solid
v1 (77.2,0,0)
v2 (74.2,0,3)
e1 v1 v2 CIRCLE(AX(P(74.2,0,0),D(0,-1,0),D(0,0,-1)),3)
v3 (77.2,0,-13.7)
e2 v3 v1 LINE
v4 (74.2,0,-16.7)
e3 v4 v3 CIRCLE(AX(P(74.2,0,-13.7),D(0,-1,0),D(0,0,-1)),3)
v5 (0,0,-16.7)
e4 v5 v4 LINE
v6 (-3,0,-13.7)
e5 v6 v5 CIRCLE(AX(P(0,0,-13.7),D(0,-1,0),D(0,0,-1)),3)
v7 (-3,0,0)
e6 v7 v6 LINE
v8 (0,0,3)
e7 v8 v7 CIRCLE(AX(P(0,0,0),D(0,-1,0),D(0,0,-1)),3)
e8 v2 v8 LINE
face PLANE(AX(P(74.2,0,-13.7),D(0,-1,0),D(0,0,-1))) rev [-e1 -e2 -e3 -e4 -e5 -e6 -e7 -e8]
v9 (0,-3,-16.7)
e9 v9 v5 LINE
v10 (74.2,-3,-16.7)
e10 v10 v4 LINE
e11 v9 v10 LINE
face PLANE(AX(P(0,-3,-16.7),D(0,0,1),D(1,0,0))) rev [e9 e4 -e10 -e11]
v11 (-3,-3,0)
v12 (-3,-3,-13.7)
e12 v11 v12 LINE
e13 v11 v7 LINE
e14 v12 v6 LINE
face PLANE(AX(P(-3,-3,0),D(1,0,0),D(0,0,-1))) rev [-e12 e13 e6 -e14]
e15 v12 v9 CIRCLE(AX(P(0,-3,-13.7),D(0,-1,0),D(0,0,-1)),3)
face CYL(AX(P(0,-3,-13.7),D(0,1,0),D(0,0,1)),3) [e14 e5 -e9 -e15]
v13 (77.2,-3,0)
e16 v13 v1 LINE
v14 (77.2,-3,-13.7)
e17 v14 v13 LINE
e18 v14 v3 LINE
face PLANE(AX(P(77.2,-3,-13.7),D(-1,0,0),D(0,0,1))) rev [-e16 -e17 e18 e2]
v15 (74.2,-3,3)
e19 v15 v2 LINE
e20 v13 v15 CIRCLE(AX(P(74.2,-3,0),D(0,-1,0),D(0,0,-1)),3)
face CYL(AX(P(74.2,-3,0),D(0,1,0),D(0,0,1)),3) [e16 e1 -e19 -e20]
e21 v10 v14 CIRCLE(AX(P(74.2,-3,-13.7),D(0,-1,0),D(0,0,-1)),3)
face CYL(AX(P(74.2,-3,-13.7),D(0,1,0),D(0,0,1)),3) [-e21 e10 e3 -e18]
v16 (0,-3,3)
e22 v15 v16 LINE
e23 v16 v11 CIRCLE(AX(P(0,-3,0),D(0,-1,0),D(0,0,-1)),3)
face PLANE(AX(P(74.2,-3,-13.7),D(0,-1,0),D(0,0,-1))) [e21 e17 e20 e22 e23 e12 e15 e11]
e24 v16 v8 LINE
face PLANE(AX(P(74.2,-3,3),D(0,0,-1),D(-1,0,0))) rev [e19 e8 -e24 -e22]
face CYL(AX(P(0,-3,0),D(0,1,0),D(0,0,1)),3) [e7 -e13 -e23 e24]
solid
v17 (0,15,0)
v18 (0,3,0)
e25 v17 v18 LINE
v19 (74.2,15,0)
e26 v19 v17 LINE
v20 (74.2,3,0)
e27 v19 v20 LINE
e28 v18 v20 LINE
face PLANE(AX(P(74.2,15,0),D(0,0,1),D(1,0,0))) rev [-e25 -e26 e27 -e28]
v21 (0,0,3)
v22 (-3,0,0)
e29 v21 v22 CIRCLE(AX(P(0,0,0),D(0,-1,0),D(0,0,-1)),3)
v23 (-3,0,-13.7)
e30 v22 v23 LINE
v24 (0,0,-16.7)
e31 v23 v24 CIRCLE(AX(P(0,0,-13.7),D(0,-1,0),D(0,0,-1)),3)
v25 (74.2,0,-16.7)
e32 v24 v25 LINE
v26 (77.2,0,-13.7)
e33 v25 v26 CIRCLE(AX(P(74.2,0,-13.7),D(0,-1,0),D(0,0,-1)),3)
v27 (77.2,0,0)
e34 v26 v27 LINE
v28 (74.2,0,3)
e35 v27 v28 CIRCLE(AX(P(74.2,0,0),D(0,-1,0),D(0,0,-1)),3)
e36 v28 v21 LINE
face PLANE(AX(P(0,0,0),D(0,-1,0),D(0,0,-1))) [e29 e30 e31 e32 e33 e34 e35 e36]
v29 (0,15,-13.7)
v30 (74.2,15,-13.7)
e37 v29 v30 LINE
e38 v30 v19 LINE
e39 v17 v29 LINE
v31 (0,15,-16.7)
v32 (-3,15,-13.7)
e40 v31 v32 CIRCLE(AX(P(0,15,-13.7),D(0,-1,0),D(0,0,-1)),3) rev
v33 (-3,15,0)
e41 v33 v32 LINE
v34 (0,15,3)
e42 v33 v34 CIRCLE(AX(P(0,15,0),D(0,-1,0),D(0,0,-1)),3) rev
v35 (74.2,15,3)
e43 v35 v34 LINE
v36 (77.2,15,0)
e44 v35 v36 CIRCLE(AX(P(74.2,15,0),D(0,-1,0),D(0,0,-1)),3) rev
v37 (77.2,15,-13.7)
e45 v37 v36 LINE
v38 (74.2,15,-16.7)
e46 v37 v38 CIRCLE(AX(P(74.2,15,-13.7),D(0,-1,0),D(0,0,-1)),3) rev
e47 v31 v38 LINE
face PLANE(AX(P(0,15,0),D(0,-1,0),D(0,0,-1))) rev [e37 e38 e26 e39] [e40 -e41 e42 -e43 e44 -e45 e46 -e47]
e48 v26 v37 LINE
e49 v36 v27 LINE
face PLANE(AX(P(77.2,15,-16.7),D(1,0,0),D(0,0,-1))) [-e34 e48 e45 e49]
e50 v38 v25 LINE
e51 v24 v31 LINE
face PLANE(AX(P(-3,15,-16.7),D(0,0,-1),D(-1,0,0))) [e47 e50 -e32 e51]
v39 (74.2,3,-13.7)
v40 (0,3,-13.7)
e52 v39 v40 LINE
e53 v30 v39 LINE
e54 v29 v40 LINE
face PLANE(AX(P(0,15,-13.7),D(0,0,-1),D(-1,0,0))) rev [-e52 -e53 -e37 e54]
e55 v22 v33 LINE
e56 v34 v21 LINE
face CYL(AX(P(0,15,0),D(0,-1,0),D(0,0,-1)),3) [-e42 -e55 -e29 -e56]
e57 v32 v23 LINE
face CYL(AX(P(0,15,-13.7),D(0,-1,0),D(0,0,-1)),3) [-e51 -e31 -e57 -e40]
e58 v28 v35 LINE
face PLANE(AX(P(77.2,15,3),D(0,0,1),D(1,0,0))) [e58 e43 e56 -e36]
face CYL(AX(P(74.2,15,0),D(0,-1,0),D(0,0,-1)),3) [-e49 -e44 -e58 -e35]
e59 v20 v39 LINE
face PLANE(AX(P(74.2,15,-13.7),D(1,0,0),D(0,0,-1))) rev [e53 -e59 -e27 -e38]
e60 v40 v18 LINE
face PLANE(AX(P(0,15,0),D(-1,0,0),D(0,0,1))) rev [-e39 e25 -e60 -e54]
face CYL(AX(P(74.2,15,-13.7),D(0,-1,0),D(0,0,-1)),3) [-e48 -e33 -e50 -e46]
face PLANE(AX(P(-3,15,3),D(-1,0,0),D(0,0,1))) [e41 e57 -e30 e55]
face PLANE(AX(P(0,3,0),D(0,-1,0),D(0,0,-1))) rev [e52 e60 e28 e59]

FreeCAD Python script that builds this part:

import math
import FreeCAD as App
import Part
import Sketcher
from FreeCAD import Vector


def edges_at(feature, points):
    """Names of the edges that pass closest to the given points."""
    edges = feature.Shape.Edges
    near = lambda p: min(range(len(edges)), key=lambda i: edges[i].distToShape(Part.Vertex(*p))[0])
    return sorted({f"Edge{near(p) + 1}" for p in points})

doc = App.newDocument("Part")
params = doc.addObject("Spreadsheet::Sheet", "Params")
for row, (alias, value) in enumerate([
    ("sketch1_width", "74.2 mm"),
    ("sketch1_height", "13.7 mm"),
    ("pad1_length", "3 mm"),
    ("sketch2_width", "80.2 mm"),
    ("sketch2_width2", "74.2 mm"),
    ("sketch2_height", "19.7 mm"),
    ("sketch2_height2", "13.7 mm"),
    ("pad2_length", "15 mm"),
    ("fillet_radius", "3 mm"),
    ("sketch3_radius", "3 mm"),
    ("sketch3_width", "74.2 mm"),
    ("sketch3_height", "13.7 mm"),
    ("pad3_length", "3 mm"),
], start=1):
    params.set(f"A{row}", alias)
    params.set(f"B{row}", "=" + value)
    params.setAlias(f"B{row}", alias)

body = doc.addObject("PartDesign::Body", "Body")

# Sketch on XZ plane
sketch1 = body.newObject("Sketcher::SketchObject", "Sketch")
sketch1.AttachmentSupport = (doc.getObject("XZ_Plane"), [""])
sketch1.MapMode = "FlatFace"
sketch1.addGeometry([
    Part.LineSegment(Vector(0, -14, 0), Vector(0, 0, 0)),
    Part.LineSegment(Vector(0, 0, 0), Vector(74, 0, 0)),
    Part.LineSegment(Vector(74, 0, 0), Vector(74, -14, 0)),
    Part.LineSegment(Vector(74, -14, 0), Vector(0, -14, 0)),
], False)
sketch1.addConstraint([
    Sketcher.Constraint("Coincident", 0, 2, 1, 1),
    Sketcher.Constraint("Coincident", 1, 2, 2, 1),
    Sketcher.Constraint("Coincident", 2, 2, 3, 1),
    Sketcher.Constraint("Coincident", 3, 2, 0, 1),
    Sketcher.Constraint("Vertical", 0),
    Sketcher.Constraint("Horizontal", 1),
    Sketcher.Constraint("Vertical", 2),
    Sketcher.Constraint("Horizontal", 3),
    Sketcher.Constraint("Coincident", 0, 2, -1, 1),
    Sketcher.Constraint("DistanceX", 1, 1, 1, 2, 74.2),
    Sketcher.Constraint("DistanceY", 0, 1, 0, 2, 13.7),
])
sketch1.setExpression("Constraints[9]", "Params.sketch1_width")
sketch1.setExpression("Constraints[10]", "Params.sketch1_height")
pad1 = body.newObject("PartDesign::Pad", "Pad")
pad1.Profile = sketch1
pad1.setExpression("Length", "Params.pad1_length")
pad1.Reversed = True

# Sketch on XZ plane
sketch2 = body.newObject("Sketcher::SketchObject", "Sketch001")
sketch2.AttachmentSupport = (doc.getObject("XZ_Plane"), [""])
sketch2.MapMode = "FlatFace"
sketch2.addGeometry([
    Part.LineSegment(Vector(-3, 3, 0), Vector(-3, -17, 0)),  # 0
    Part.LineSegment(Vector(-3, -17, 0), Vector(77, -17, 0)),  # 1
    Part.LineSegment(Vector(77, -17, 0), Vector(77, 3, 0)),  # 2
    Part.LineSegment(Vector(77, 3, 0), Vector(-3, 3, 0)),  # 3
    Part.LineSegment(Vector(74, -14, 0), Vector(0, -14, 0)),  # 4
    Part.LineSegment(Vector(0, -14, 0), Vector(0, 0, 0)),  # 5
    Part.LineSegment(Vector(0, 0, 0), Vector(74, 0, 0)),  # 6
    Part.LineSegment(Vector(74, 0, 0), Vector(74, -14, 0)),  # 7
], False)
sketch2.addConstraint([
    Sketcher.Constraint("Coincident", 0, 2, 1, 1),
    Sketcher.Constraint("Coincident", 1, 2, 2, 1),
    Sketcher.Constraint("Coincident", 2, 2, 3, 1),
    Sketcher.Constraint("Coincident", 3, 2, 0, 1),
    Sketcher.Constraint("Coincident", 4, 2, 5, 1),
    Sketcher.Constraint("Coincident", 5, 2, 6, 1),
    Sketcher.Constraint("Coincident", 6, 2, 7, 1),
    Sketcher.Constraint("Coincident", 7, 2, 4, 1),
    Sketcher.Constraint("Vertical", 0),
    Sketcher.Constraint("Horizontal", 1),
    Sketcher.Constraint("Vertical", 2),
    Sketcher.Constraint("Horizontal", 3),
    Sketcher.Constraint("Horizontal", 4),
    Sketcher.Constraint("Vertical", 5),
    Sketcher.Constraint("Horizontal", 6),
    Sketcher.Constraint("Vertical", 7),
    Sketcher.Constraint("Coincident", 5, 2, -1, 1),
    Sketcher.Constraint("DistanceX", 1, 1, 1, 2, 80.2),
    Sketcher.Constraint("DistanceX", 4, 2, 4, 1, 74.2),
    Sketcher.Constraint("DistanceY", 0, 2, 0, 1, 19.7),
    Sketcher.Constraint("DistanceY", 5, 1, 5, 2, 13.7),
    Sketcher.Constraint("DistanceX", 0, 2, -1, 1, 3.0),
    Sketcher.Constraint("DistanceY", -1, 1, 2, 2, 3.0),
])
sketch2.setExpression("Constraints[17]", "Params.sketch2_width")
sketch2.setExpression("Constraints[18]", "Params.sketch2_width2")
sketch2.setExpression("Constraints[19]", "Params.sketch2_height")
sketch2.setExpression("Constraints[20]", "Params.sketch2_height2")
pad2 = body.newObject("PartDesign::Pad", "Pad001")
pad2.Profile = sketch2
pad2.setExpression("Length", "Params.pad2_length")
pad2.Reversed = True
doc.recompute()

fillet = body.newObject("PartDesign::Fillet", "Fillet")
fillet.Base = (pad2, edges_at(pad2, [
    (77.2, 7.5, 3),
    (77.2, 7.5, -16.7),
    (-3, 7.5, -16.7),
    (-3, 7.5, 3),
]))
fillet.setExpression("Radius", "Params.fillet_radius")
body2 = doc.addObject("PartDesign::Body", "Body001")

# Sketch on XZ plane
sketch3 = body2.newObject("Sketcher::SketchObject", "Sketch002")
sketch3.AttachmentSupport = (doc.getObject("XZ_Plane001"), [""])
sketch3.MapMode = "FlatFace"
sketch3.addGeometry([
    Part.LineSegment(Vector(77.2, -13.7, 0), Vector(77.2, 0, 0)),  # 0
    Part.ArcOfCircle(Part.Circle(Vector(74.2, 0, 0), Vector(0, 0, 1), 3), math.radians(0), math.radians(90)),  # 1
    Part.LineSegment(Vector(74.2, 3, 0), Vector(0, 3, 0)),  # 2
    Part.ArcOfCircle(Part.Circle(Vector(0, 0, 0), Vector(0, 0, 1), 3), math.radians(90), math.radians(180)),  # 3
    Part.LineSegment(Vector(-3, 0, 0), Vector(-3, -13.7, 0)),  # 4
    Part.ArcOfCircle(Part.Circle(Vector(0, -13.7, 0), Vector(0, 0, 1), 3), math.radians(180), math.radians(270)),  # 5
    Part.LineSegment(Vector(0, -16.7, 0), Vector(74.2, -16.7, 0)),  # 6
    Part.ArcOfCircle(Part.Circle(Vector(74.2, -13.7, 0), Vector(0, 0, 1), 3), math.radians(-90), math.radians(0)),  # 7
], False)
sketch3.addConstraint([
    Sketcher.Constraint("Tangent", 0, 2, 1, 1),
    Sketcher.Constraint("Tangent", 1, 2, 2, 1),
    Sketcher.Constraint("Tangent", 2, 2, 3, 1),
    Sketcher.Constraint("Tangent", 3, 2, 4, 1),
    Sketcher.Constraint("Tangent", 4, 2, 5, 1),
    Sketcher.Constraint("Tangent", 5, 2, 6, 1),
    Sketcher.Constraint("Tangent", 6, 2, 7, 1),
    Sketcher.Constraint("Tangent", 7, 2, 0, 1),
    Sketcher.Constraint("Vertical", 0),
    Sketcher.Constraint("Horizontal", 2),
    Sketcher.Constraint("Vertical", 4),
    Sketcher.Constraint("Horizontal", 6),
    Sketcher.Constraint("Coincident", 3, 3, -1, 1),
    Sketcher.Constraint("Equal", 1, 3),
    Sketcher.Constraint("Equal", 3, 5),
    Sketcher.Constraint("Equal", 5, 7),
    Sketcher.Constraint("Radius", 1, 3.0),
    Sketcher.Constraint("DistanceX", 2, 2, 2, 1, 74.2),
    Sketcher.Constraint("DistanceY", 0, 1, 0, 2, 13.7),
])
sketch3.setExpression("Constraints[16]", "Params.sketch3_radius")
sketch3.setExpression("Constraints[17]", "Params.sketch3_width")
sketch3.setExpression("Constraints[18]", "Params.sketch3_height")
pad3 = body2.newObject("PartDesign::Pad", "Pad002")
pad3.Profile = sketch3
pad3.setExpression("Length", "Params.pad3_length")

doc.recompute()
